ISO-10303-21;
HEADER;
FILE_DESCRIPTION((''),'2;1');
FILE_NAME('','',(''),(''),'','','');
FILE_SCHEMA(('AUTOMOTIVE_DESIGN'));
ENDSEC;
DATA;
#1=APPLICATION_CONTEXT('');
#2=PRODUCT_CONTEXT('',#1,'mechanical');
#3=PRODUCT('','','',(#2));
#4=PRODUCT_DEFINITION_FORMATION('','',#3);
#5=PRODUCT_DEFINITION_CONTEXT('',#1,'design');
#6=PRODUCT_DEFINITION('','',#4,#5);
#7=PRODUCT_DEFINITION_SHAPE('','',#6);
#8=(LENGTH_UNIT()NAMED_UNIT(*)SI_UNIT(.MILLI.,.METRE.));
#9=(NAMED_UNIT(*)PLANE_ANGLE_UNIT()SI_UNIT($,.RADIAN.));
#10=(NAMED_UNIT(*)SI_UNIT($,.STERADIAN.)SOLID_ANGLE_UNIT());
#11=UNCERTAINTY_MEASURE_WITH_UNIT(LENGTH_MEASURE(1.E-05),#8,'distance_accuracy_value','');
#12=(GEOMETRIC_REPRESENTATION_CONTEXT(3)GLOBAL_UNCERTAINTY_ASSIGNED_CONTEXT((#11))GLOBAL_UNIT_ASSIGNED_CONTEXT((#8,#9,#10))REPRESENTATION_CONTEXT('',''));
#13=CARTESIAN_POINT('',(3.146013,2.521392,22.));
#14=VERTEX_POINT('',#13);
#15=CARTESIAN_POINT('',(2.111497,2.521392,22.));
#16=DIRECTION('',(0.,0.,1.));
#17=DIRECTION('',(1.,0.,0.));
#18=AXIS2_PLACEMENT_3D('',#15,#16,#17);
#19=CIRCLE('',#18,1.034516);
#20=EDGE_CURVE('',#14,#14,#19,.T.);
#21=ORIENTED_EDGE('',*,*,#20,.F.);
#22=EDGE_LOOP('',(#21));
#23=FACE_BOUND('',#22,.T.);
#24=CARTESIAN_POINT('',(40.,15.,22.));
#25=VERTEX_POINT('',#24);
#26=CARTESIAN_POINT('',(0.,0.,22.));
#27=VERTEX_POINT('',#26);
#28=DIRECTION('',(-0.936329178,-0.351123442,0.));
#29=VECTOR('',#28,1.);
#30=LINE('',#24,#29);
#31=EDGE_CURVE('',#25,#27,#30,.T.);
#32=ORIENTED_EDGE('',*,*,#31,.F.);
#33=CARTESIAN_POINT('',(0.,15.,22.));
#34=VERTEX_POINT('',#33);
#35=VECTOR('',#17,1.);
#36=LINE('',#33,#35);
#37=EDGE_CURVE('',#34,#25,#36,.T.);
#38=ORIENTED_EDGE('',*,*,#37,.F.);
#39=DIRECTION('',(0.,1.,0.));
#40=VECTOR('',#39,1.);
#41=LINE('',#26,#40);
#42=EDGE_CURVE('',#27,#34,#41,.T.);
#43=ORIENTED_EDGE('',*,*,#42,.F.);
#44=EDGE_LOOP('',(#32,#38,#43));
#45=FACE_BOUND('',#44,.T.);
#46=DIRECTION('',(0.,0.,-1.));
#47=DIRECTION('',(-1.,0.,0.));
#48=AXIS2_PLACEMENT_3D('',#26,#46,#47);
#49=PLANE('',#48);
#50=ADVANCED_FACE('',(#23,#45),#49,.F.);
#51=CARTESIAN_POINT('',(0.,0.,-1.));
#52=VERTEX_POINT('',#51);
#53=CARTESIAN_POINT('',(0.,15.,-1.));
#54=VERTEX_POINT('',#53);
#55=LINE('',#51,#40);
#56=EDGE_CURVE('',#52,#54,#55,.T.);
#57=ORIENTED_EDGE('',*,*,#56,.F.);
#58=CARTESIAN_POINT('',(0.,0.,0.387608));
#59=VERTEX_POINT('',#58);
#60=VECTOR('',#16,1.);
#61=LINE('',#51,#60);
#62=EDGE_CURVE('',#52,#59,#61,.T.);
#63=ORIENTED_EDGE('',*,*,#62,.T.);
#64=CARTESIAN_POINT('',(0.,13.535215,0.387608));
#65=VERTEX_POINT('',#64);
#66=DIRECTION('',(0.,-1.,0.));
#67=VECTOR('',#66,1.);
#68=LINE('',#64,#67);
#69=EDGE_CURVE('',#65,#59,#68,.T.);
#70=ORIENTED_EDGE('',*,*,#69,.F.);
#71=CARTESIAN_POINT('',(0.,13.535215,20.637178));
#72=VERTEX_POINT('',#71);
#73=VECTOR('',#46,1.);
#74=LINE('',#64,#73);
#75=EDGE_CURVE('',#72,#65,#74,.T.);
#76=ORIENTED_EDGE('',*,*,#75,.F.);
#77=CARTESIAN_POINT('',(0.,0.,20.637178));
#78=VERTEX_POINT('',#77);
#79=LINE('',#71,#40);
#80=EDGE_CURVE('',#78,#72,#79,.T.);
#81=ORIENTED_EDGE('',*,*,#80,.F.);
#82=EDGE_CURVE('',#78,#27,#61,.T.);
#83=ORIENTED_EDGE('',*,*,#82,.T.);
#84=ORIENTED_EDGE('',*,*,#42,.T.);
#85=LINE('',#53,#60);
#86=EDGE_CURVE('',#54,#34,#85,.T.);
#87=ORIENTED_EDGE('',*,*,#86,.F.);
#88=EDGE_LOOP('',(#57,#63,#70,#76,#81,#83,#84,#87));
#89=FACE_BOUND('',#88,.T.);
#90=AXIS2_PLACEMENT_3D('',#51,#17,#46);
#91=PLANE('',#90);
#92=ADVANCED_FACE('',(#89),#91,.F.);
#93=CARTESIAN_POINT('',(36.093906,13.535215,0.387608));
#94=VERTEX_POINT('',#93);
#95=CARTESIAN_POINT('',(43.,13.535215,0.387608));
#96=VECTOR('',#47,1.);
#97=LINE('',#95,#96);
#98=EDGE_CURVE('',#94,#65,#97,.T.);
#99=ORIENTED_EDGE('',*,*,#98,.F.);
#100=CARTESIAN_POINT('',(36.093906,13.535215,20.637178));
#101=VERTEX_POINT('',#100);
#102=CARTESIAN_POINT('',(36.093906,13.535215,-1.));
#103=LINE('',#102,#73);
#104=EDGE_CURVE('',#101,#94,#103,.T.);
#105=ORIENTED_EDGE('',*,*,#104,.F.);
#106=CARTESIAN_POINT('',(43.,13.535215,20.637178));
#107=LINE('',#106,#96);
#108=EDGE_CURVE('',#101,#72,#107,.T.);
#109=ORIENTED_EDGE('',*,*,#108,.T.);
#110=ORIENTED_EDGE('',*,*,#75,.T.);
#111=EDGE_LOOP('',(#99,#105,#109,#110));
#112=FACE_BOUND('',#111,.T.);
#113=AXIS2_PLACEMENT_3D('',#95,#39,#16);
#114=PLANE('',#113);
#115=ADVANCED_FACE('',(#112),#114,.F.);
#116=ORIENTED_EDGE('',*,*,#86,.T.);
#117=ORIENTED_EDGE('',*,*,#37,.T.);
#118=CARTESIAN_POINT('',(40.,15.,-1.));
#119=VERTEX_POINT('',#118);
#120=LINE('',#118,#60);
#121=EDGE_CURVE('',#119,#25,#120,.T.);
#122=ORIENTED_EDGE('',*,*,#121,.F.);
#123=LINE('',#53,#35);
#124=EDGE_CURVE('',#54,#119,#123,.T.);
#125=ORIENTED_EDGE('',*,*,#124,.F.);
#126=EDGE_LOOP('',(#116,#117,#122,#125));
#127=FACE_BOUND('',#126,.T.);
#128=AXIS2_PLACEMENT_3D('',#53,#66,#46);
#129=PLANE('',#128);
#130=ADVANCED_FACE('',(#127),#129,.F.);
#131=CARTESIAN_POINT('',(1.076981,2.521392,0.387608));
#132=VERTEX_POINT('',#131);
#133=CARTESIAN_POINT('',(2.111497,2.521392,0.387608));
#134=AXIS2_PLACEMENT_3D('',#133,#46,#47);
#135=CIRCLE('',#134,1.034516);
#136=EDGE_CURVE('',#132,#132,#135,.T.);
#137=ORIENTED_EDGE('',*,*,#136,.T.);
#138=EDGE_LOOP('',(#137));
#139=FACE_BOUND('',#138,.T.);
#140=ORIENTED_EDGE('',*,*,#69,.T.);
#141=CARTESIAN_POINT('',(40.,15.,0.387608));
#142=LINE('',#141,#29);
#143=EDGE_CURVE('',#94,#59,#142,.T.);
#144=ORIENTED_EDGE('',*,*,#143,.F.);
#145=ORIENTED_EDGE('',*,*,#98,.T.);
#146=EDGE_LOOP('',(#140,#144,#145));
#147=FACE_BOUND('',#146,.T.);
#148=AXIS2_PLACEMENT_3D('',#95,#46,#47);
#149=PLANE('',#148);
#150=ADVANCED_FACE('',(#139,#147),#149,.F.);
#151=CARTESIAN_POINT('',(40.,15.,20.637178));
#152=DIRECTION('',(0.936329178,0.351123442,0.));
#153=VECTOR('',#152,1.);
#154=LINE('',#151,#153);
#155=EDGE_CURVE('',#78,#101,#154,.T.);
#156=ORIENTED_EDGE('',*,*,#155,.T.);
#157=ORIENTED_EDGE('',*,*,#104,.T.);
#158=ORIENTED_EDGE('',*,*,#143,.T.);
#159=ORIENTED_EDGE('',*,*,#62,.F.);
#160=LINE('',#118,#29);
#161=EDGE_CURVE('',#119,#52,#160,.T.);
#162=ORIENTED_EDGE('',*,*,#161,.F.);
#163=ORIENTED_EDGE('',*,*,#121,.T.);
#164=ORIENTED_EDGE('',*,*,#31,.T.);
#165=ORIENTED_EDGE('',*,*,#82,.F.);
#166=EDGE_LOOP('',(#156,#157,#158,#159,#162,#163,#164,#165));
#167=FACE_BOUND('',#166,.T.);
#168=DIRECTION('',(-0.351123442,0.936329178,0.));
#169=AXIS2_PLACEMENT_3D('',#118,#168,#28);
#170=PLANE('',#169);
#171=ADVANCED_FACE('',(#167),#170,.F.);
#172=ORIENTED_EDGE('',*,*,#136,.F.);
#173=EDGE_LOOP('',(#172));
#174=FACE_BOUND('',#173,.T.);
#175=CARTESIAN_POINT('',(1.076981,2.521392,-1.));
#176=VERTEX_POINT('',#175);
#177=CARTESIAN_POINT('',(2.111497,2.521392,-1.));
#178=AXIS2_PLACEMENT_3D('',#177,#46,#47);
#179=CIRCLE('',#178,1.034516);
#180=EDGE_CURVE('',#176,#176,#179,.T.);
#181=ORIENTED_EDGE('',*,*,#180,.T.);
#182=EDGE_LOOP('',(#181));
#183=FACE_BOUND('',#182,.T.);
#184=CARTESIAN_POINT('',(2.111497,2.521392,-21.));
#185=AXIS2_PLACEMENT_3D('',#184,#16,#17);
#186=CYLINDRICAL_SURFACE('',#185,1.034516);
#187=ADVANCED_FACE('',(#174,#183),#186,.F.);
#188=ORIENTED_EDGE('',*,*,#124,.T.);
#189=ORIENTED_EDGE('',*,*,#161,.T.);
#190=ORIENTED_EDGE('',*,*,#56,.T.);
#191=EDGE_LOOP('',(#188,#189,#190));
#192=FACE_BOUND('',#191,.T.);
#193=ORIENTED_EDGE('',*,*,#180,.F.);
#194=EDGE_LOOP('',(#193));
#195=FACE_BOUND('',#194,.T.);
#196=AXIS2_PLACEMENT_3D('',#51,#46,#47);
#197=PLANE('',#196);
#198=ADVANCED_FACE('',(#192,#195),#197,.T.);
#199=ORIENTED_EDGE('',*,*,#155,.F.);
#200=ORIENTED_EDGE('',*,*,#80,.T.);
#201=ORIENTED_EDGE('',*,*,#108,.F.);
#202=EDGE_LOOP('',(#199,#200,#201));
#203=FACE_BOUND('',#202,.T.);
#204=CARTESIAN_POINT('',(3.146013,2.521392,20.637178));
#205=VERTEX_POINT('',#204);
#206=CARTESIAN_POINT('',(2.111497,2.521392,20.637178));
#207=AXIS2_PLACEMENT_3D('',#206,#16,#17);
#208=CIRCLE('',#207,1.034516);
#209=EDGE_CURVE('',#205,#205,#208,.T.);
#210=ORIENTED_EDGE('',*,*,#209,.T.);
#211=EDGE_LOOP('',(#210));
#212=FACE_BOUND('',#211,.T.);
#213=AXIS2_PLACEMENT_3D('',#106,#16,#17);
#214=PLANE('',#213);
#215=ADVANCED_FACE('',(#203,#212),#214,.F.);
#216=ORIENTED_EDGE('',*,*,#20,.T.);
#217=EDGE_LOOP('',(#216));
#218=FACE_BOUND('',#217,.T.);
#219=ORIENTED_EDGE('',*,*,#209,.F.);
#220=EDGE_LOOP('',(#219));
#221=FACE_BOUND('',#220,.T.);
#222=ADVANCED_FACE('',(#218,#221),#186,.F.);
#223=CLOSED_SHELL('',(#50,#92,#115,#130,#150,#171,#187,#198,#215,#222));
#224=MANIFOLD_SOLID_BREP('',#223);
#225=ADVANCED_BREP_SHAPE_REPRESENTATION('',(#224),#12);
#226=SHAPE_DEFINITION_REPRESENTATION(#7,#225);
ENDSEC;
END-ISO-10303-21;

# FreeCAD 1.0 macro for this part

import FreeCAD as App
import Part
import Sketcher
from FreeCAD import Vector
Q = App.Units.Quantity

doc = App.newDocument("Part")
body = doc.addObject("PartDesign::Body", "Body")

sketch1 = body.newObject("Sketcher::SketchObject", "Sketch")
sketch1.AttachmentSupport = (doc.getObject("XY_Plane"), [""])
sketch1.MapMode = "FlatFace"
sketch1.addGeometry(Part.LineSegment(Vector(0, 15, 0), Vector(0, 0, 0)), False)
sketch1.addGeometry(Part.LineSegment(Vector(0, 0, 0), Vector(40, 15, 0)), False)
sketch1.addGeometry(Part.LineSegment(Vector(40, 15, 0), Vector(0, 15, 0)), False)
sketch1.addConstraint(Sketcher.Constraint("Coincident", 0, 2, 1, 1))
sketch1.addConstraint(Sketcher.Constraint("Coincident", 1, 2, 2, 1))
sketch1.addConstraint(Sketcher.Constraint("Coincident", 2, 2, 0, 1))
sketch1.addConstraint(Sketcher.Constraint("Vertical", 0))
sketch1.addConstraint(Sketcher.Constraint("Horizontal", 2))
sketch1.addConstraint(Sketcher.Constraint("Coincident", 0, 2, -1, 1))
sketch1.addConstraint(Sketcher.Constraint("DistanceX", 2, 2, 2, 1, Q("40 mm")))
sketch1.addConstraint(Sketcher.Constraint("DistanceY", 0, 2, 0, 1, Q("15 mm")))
pad1 = body.newObject("PartDesign::Pad", "Pad")
pad1.Profile = sketch1
pad1.Type = "TwoLengths"
pad1.Length = 22
pad1.Length2 = 1

sketch2 = body.newObject("Sketcher::SketchObject", "Sketch001")
sketch2.AttachmentSupport = (doc.getObject("YZ_Plane"), [""])
sketch2.MapMode = "FlatFace"
sketch2.addGeometry(Part.LineSegment(Vector(13.535215, 0.387608, 0), Vector(-0.195828, 0.387608, 0)), False)
sketch2.addGeometry(Part.LineSegment(Vector(-0.195828, 0.387608, 0), Vector(-0.195828, 20.637178, 0)), False)
sketch2.addGeometry(Part.LineSegment(Vector(-0.195828, 20.637178, 0), Vector(13.535215, 20.637178, 0)), False)
sketch2.addGeometry(Part.LineSegment(Vector(13.535215, 20.637178, 0), Vector(13.535215, 0.387608, 0)), False)
sketch2.addConstraint(Sketcher.Constraint("Coincident", 0, 2, 1, 1))
sketch2.addConstraint(Sketcher.Constraint("Coincident", 1, 2, 2, 1))
sketch2.addConstraint(Sketcher.Constraint("Coincident", 2, 2, 3, 1))
sketch2.addConstraint(Sketcher.Constraint("Coincident", 3, 2, 0, 1))
sketch2.addConstraint(Sketcher.Constraint("Horizontal", 0))
sketch2.addConstraint(Sketcher.Constraint("Vertical", 1))
sketch2.addConstraint(Sketcher.Constraint("Horizontal", 2))
sketch2.addConstraint(Sketcher.Constraint("Vertical", 3))
sketch2.addConstraint(Sketcher.Constraint("DistanceY", 1, 1, 1, 2, Q("20.24957 mm")))
sketch2.addConstraint(Sketcher.Constraint("DistanceX", 0, 2, 0, 1, Q("13.731043 mm")))
sketch2.addConstraint(Sketcher.Constraint("DistanceX", 0, 2, -1, 1, Q("0.195828 mm")))
sketch2.addConstraint(Sketcher.Constraint("DistanceY", -1, 1, 0, 2, Q("0.387608 mm")))
pocket1 = body.newObject("PartDesign::Pocket", "Pocket")
pocket1.Profile = sketch2
pocket1.Length = 43
pocket1.Reversed = True

sketch3 = body.newObject("Sketcher::SketchObject", "Sketch002")
sketch3.AttachmentSupport = (doc.getObject("XY_Plane"), [""])
sketch3.MapMode = "FlatFace"
sketch3.AttachmentOffset = App.Placement(Vector(0, 0, 22), App.Rotation())
sketch3.addGeometry(Part.Circle(Vector(2.111497, 2.521392, 0), Vector(0, 0, 1), 1.034516), False)
sketch3.addConstraint(Sketcher.Constraint("Diameter", 0, Q("2.069032 mm")))
sketch3.addConstraint(Sketcher.Constraint("DistanceX", -1, 1, 0, 3, Q("2.111497 mm")))
sketch3.addConstraint(Sketcher.Constraint("DistanceY", -1, 1, 0, 3, Q("2.521392 mm")))
pocket2 = body.newObject("PartDesign::Pocket", "Pocket001")
pocket2.Profile = sketch3
pocket2.Length = 43

doc.recompute()
